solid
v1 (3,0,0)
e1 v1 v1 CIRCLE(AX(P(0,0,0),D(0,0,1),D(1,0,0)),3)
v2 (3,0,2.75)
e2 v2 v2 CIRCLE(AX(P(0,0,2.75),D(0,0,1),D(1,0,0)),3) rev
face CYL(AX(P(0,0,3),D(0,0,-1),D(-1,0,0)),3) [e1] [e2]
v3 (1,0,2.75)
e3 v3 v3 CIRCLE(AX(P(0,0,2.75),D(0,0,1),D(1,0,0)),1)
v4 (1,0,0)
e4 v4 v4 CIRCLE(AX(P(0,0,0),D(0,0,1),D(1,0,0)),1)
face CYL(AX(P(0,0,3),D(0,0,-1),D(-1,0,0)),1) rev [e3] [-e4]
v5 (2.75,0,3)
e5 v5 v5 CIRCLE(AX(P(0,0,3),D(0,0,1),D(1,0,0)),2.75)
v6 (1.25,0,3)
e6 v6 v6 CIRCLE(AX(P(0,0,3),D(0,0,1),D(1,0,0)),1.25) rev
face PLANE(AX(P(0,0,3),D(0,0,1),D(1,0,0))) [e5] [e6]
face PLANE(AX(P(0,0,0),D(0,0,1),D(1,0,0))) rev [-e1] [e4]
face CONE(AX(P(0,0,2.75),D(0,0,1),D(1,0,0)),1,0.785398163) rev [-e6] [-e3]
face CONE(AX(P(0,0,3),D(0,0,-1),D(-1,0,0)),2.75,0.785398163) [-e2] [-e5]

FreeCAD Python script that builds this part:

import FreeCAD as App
import Part
import Sketcher

V = App.Vector
Q = App.Units.Quantity


def edges_at(feature, points):
    """Names of the edges that pass closest to the given points."""
    edges = feature.Shape.Edges
    near = lambda p: min(range(len(edges)), key=lambda i: edges[i].distToShape(Part.Vertex(*p))[0])
    return sorted({f"Edge{near(p) + 1}" for p in points})

doc = App.newDocument("Part")
body = doc.addObject("PartDesign::Body", "Body")

sketch1 = doc.addObject("Sketcher::SketchObject", "Sketch")
body.addObject(sketch1)
sketch1.AttachmentSupport = (doc.XY_Plane, [""])
sketch1.MapMode = "FlatFace"
sketch1.addGeometry([
    Part.Circle(V(0, 0, 0), V(0, 0, 1), 3),
    Part.Circle(V(0, 0, 0), V(0, 0, 1), 1),
], False)
sketch1.addConstraint([
    Sketcher.Constraint("Coincident", 0, 3, -1, 1),
    Sketcher.Constraint("Coincident", 1, 3, -1, 1),
    Sketcher.Constraint("Diameter", 0, Q("6 mm")),
    Sketcher.Constraint("Diameter", 1, Q("2 mm")),
])
pad1 = doc.addObject("PartDesign::Pad", "Pad")
body.addObject(pad1)
pad1.Profile = sketch1
pad1.Length = 3
doc.recompute()

chamfer = doc.addObject("PartDesign::Chamfer", "Chamfer")
body.addObject(chamfer)
chamfer.Base = (pad1, edges_at(pad1, [(-3, 0, 3)]))
chamfer.Size = 0.25
doc.recompute()

chamfer2 = doc.addObject("PartDesign::Chamfer", "Chamfer001")
body.addObject(chamfer2)
chamfer2.Base = (chamfer, edges_at(chamfer, [(-1, 0, 3)]))
chamfer2.Size = 0.25

doc.recompute()
